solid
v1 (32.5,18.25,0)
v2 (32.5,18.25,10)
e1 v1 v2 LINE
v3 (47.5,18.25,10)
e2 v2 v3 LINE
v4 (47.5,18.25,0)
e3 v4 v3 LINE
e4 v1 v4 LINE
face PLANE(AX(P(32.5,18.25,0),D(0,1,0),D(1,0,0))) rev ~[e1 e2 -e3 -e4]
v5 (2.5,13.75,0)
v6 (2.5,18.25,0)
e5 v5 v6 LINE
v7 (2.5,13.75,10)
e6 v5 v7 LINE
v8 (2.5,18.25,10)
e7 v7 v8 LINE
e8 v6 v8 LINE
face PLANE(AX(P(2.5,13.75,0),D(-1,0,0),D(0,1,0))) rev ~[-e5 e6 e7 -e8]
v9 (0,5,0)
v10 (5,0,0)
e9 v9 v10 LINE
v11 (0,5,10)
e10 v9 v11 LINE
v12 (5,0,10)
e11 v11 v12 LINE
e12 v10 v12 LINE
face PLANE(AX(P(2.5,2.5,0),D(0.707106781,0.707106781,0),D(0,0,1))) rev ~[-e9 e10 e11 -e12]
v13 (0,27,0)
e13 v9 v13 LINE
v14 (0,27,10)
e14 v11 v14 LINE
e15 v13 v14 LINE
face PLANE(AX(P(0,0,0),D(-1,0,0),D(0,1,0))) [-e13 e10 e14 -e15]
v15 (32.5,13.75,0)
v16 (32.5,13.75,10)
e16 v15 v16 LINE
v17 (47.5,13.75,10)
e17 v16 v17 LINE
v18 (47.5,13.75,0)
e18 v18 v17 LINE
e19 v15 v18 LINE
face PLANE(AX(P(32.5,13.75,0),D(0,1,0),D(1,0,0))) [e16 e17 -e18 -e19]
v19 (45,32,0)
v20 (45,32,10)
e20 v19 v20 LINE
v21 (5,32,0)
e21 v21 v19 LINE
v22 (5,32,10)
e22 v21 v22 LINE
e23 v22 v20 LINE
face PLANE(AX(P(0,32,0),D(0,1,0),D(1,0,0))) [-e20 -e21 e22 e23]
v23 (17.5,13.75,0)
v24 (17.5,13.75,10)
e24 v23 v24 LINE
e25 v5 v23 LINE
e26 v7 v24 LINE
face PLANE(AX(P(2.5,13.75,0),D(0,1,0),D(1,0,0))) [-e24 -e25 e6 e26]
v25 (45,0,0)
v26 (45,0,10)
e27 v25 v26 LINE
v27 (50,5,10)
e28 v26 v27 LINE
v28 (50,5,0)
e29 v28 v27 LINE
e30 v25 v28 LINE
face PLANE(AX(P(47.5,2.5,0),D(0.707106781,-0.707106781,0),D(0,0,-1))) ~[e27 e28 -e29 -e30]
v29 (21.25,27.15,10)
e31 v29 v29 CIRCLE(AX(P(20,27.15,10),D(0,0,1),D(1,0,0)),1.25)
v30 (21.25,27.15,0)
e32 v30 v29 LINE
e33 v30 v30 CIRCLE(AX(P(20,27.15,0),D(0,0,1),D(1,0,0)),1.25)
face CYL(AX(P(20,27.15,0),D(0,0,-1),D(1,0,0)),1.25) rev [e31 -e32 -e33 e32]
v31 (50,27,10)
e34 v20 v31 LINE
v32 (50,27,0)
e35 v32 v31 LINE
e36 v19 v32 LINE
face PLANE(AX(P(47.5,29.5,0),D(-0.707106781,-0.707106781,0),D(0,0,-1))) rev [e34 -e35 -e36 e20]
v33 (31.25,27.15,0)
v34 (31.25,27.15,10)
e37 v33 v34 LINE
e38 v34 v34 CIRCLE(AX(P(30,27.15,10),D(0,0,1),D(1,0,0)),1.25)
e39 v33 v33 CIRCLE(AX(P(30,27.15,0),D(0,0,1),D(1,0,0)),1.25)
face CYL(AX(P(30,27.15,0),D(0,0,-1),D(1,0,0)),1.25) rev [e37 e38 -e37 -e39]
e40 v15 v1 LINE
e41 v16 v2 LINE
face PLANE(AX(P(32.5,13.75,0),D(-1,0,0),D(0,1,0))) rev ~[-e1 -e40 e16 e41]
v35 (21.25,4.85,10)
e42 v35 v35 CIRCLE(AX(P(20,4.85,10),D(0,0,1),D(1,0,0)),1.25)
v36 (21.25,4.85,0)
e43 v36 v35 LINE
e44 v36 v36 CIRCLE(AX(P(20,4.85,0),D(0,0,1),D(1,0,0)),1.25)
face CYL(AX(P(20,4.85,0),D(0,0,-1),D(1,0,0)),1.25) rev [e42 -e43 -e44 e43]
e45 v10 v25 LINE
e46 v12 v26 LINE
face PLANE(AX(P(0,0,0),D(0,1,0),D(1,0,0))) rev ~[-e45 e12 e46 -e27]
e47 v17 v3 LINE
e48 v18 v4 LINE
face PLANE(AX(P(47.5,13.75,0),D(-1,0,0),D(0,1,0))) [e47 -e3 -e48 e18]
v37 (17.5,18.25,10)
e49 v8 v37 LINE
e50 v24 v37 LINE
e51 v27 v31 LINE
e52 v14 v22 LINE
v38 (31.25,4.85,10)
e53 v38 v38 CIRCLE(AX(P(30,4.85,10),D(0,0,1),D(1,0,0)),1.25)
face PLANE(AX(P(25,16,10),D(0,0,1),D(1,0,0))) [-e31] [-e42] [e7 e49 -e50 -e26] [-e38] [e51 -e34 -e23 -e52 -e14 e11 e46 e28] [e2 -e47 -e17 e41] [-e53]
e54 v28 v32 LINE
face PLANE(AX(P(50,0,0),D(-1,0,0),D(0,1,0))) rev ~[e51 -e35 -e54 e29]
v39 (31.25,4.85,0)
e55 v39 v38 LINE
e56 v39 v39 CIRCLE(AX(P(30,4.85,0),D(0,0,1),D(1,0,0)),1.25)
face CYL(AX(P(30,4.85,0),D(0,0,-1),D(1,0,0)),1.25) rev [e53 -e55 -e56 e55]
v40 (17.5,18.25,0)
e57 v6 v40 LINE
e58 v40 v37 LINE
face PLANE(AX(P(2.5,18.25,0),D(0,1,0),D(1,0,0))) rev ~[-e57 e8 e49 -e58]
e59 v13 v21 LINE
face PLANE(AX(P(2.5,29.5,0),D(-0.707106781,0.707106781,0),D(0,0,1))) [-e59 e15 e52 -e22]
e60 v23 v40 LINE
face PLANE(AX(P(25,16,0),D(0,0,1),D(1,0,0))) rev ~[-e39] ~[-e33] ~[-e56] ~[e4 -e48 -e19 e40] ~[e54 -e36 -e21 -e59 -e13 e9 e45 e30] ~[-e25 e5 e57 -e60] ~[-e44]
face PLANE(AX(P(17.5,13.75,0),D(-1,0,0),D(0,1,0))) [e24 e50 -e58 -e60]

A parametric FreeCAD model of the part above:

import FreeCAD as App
import Part
import Sketcher

V = App.Vector


def edges_at(feature, points):
    """Names of the edges that pass closest to the given points."""
    edges = feature.Shape.Edges
    near = lambda p: min(range(len(edges)), key=lambda i: edges[i].distToShape(Part.Vertex(*p))[0])
    return sorted({f"Edge{near(p) + 1}" for p in points})

doc = App.newDocument("Part")
body = doc.addObject("PartDesign::Body", "Body")

# Sketch on XY plane
sketch1 = body.newObject("Sketcher::SketchObject", "Sketch")
sketch1.AttachmentSupport = (doc.getObject("XY_Plane"), [""])
sketch1.MapMode = "FlatFace"
sketch1.addGeometry([
    Part.LineSegment(V(0, 32, 0), V(0, 0, 0)),  # 0
    Part.LineSegment(V(0, 0, 0), V(50, 0, 0)),  # 1
    Part.LineSegment(V(50, 0, 0), V(50, 32, 0)),  # 2
    Part.LineSegment(V(50, 32, 0), V(0, 32, 0)),  # 3
    Part.Circle(V(20, 4.85, 0), V(0, 0, 1), 1.25),  # 4
    Part.Circle(V(30, 4.85, 0), V(0, 0, 1), 1.25),  # 5
    Part.LineSegment(V(17.5, 13.75, 0), V(2.5, 13.75, 0)),  # 6
    Part.LineSegment(V(2.5, 13.75, 0), V(2.5, 18.25, 0)),  # 7
    Part.LineSegment(V(2.5, 18.25, 0), V(17.5, 18.25, 0)),  # 8
    Part.LineSegment(V(17.5, 18.25, 0), V(17.5, 13.75, 0)),  # 9
    Part.Circle(V(20, 27.15, 0), V(0, 0, 1), 1.25),  # 10
    Part.LineSegment(V(47.5, 13.75, 0), V(32.5, 13.75, 0)),  # 11
    Part.LineSegment(V(32.5, 13.75, 0), V(32.5, 18.25, 0)),  # 12
    Part.LineSegment(V(32.5, 18.25, 0), V(47.5, 18.25, 0)),  # 13
    Part.LineSegment(V(47.5, 18.25, 0), V(47.5, 13.75, 0)),  # 14
    Part.Circle(V(30, 27.15, 0), V(0, 0, 1), 1.25),  # 15
], False)
sketch1.addConstraint([
    Sketcher.Constraint("Coincident", 0, 2, 1, 1),
    Sketcher.Constraint("Coincident", 1, 2, 2, 1),
    Sketcher.Constraint("Coincident", 2, 2, 3, 1),
    Sketcher.Constraint("Coincident", 3, 2, 0, 1),
    Sketcher.Constraint("Coincident", 6, 2, 7, 1),
    Sketcher.Constraint("Coincident", 7, 2, 8, 1),
    Sketcher.Constraint("Coincident", 8, 2, 9, 1),
    Sketcher.Constraint("Coincident", 9, 2, 6, 1),
    Sketcher.Constraint("Coincident", 11, 2, 12, 1),
    Sketcher.Constraint("Coincident", 12, 2, 13, 1),
    Sketcher.Constraint("Coincident", 13, 2, 14, 1),
    Sketcher.Constraint("Coincident", 14, 2, 11, 1),
    Sketcher.Constraint("Vertical", 0),
    Sketcher.Constraint("Horizontal", 1),
    Sketcher.Constraint("Vertical", 2),
    Sketcher.Constraint("Horizontal", 3),
    Sketcher.Constraint("Horizontal", 6),
    Sketcher.Constraint("Vertical", 7),
    Sketcher.Constraint("Horizontal", 8),
    Sketcher.Constraint("Vertical", 9),
    Sketcher.Constraint("Horizontal", 11),
    Sketcher.Constraint("Vertical", 12),
    Sketcher.Constraint("Horizontal", 13),
    Sketcher.Constraint("Vertical", 14),
    Sketcher.Constraint("Coincident", 0, 2, -1, 1),
    Sketcher.Constraint("Equal", 4, 5),
    Sketcher.Constraint("Equal", 5, 10),
    Sketcher.Constraint("Equal", 10, 15),
    Sketcher.Constraint("Horizontal", 4, 3, 5, 3),
    Sketcher.Constraint("Horizontal", 10, 3, 15, 3),
    Sketcher.Constraint("Horizontal", 9, 2, 11, 2),
    Sketcher.Constraint("Horizontal", 8, 2, 12, 2),
    Sketcher.Constraint("Vertical", 4, 3, 10, 3),
    Sketcher.Constraint("Vertical", 5, 3, 15, 3),
    Sketcher.Constraint("Equal", 8, 11),
    Sketcher.Constraint("Diameter", 4, 2.5),
    Sketcher.Constraint("DistanceX", 1, 1, 1, 2, 50.0),
    Sketcher.Constraint("DistanceX", 6, 2, 6, 1, 15.0),
    Sketcher.Constraint("DistanceY", 0, 2, 0, 1, 32.0),
    Sketcher.Constraint("DistanceY", 7, 1, 7, 2, 4.5),
    Sketcher.Constraint("DistanceX", -1, 1, 4, 3, 20.0),
    Sketcher.Constraint("DistanceX", -1, 1, 5, 3, 30.0),
    Sketcher.Constraint("DistanceX", 9, 2, 11, 2, 15.0),
    Sketcher.Constraint("DistanceX", -1, 1, 6, 2, 2.5),
    Sketcher.Constraint("DistanceY", 4, 3, 10, 3, 22.3),
    Sketcher.Constraint("DistanceY", 4, 3, 6, 2, 8.9),
    Sketcher.Constraint("DistanceY", -1, 1, 4, 3, 4.85),
])
pad1 = body.newObject("PartDesign::Pad", "Pad")
pad1.Profile = sketch1
pad1.Length = 10
doc.recompute()

chamfer = body.newObject("PartDesign::Chamfer", "Chamfer")
chamfer.Base = (pad1, edges_at(pad1, [
    (0, 0, 5),
    (50, 0, 5),
    (50, 32, 5),
    (0, 32, 5),
]))
chamfer.Size = 5

doc.recompute()
